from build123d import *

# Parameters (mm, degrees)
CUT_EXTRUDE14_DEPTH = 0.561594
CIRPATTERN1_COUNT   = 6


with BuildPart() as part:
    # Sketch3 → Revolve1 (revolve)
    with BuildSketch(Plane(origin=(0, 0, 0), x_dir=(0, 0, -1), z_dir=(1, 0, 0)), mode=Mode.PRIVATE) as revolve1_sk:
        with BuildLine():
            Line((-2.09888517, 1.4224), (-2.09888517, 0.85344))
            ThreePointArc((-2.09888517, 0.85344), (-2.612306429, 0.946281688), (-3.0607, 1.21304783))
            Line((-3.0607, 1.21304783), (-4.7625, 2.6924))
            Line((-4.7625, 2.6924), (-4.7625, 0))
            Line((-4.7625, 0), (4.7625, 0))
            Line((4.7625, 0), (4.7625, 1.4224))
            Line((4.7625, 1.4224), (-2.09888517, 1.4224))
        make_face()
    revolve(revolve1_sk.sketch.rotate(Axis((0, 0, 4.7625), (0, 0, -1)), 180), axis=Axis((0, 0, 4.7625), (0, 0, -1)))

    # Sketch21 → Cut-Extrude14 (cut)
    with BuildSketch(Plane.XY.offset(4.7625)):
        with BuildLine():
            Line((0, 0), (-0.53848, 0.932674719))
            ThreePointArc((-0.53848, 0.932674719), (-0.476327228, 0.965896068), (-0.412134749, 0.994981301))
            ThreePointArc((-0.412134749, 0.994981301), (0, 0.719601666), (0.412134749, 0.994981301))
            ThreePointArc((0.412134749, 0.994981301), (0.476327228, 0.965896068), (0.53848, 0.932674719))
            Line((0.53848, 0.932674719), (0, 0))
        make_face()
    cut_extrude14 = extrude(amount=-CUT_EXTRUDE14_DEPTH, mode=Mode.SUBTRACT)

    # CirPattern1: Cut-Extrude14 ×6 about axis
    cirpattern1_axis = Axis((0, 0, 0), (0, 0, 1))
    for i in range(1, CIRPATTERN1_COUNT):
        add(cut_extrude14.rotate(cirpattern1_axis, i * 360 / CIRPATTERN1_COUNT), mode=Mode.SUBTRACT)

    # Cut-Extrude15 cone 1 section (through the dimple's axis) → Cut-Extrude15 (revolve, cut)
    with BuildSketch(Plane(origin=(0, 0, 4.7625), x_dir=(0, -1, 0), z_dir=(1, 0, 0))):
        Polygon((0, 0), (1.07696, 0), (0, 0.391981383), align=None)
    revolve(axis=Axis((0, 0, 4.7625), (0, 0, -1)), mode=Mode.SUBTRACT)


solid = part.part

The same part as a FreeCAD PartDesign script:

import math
import FreeCAD as App
import Part
import Sketcher

V = App.Vector
Q = App.Units.Quantity

doc = App.newDocument("Part")
body = doc.addObject("PartDesign::Body", "Body")

# Sketch on YZ plane
sketch1 = body.newObject("Sketcher::SketchObject", "Sketch")
sketch1.AttachmentSupport = (doc.getObject("YZ_Plane"), [""])
sketch1.MapMode = "FlatFace"
sketch1.addGeometry([
    Part.LineSegment(V(1.4224, 2.098885, 0), V(0.85344, 2.098885, 0)),  # 0
    Part.ArcOfCircle(Part.Circle(V(2.319489, 2.098885, 0), V(0, 0, 1), 1.466049), math.radians(139), math.radians(180)),  # 1
    Part.LineSegment(V(1.213048, 3.0607, 0), V(2.6924, 4.7625, 0)),  # 2
    Part.LineSegment(V(2.6924, 4.7625, 0), V(0, 4.7625, 0)),  # 3
    Part.LineSegment(V(0, 4.7625, 0), V(0, -4.7625, 0)),  # 4
    Part.LineSegment(V(0, -4.7625, 0), V(1.4224, -4.7625, 0)),  # 5
    Part.LineSegment(V(1.4224, -4.7625, 0), V(1.4224, 2.098885, 0)),  # 6
], False)
sketch1.addConstraint([
    Sketcher.Constraint("Coincident", 0, 2, 1, 2),
    Sketcher.Constraint("Tangent", 1, 1, 2, 1),
    Sketcher.Constraint("Coincident", 2, 2, 3, 1),
    Sketcher.Constraint("Coincident", 3, 2, 4, 1),
    Sketcher.Constraint("Coincident", 4, 2, 5, 1),
    Sketcher.Constraint("Coincident", 5, 2, 6, 1),
    Sketcher.Constraint("Coincident", 6, 2, 0, 1),
    Sketcher.Constraint("Horizontal", 0),
    Sketcher.Constraint("Horizontal", 3),
    Sketcher.Constraint("Vertical", 4),
    Sketcher.Constraint("Horizontal", 5),
    Sketcher.Constraint("Vertical", 6),
    Sketcher.Constraint("Symmetric", 3, 2, 4, 2, -1, 1),
    Sketcher.Constraint("Horizontal", 1, 3, 0, 2),
    Sketcher.Constraint("Angle", 2, Q("49 deg")),
    Sketcher.Constraint("DistanceX", 3, 2, 3, 1, Q("0.106 in")),
    Sketcher.Constraint("DistanceX", 5, 1, 5, 2, Q("0.056 in")),
    Sketcher.Constraint("DistanceY", 4, 2, 4, 1, Q("0.375 in")),
    Sketcher.Constraint("DistanceX", 0, 2, 0, 1, Q("0.0224 in")),
    Sketcher.Constraint("Radius", 1, Q("1.466049 mm")),
])
revolution = body.newObject("PartDesign::Revolution", "Revolution")
revolution.Profile = sketch1
revolution.ReferenceAxis = (sketch1, ["V_Axis"])
revolution.Angle = 360

# Sketch on XY plane
sketch2 = body.newObject("Sketcher::SketchObject", "Sketch001")
sketch2.AttachmentSupport = (doc.getObject("XY_Plane"), [""])
sketch2.MapMode = "FlatFace"
sketch2.AttachmentOffset = App.Placement(V(0, 0, 0.1875 * 25.4), App.Rotation())
sketch2.addGeometry([
    Part.LineSegment(V(-0.53848, 0.932675, 0), V(0, 0, 0)),  # 0
    Part.LineSegment(V(0, 0, 0), V(0.53848, 0.932675, 0)),  # 1
    Part.ArcOfCircle(Part.Circle(V(0, 0, 0), V(0, 0, 1), 1.07696), math.radians(59.999999), math.radians(67.500001)),  # 2
    Part.ArcOfCircle(Part.Circle(V(0, 1.165693, 0), V(0, 0, 1), 0.446091), math.radians(-157.5), math.radians(-22.5)),  # 3
    Part.ArcOfCircle(Part.Circle(V(0, 0, 0), V(0, 0, 1), 1.07696), math.radians(112.499999), math.radians(120.000001)),  # 4
], False)
sketch2.addConstraint([
    Sketcher.Constraint("Coincident", 0, 2, 1, 1),
    Sketcher.Constraint("Coincident", 1, 2, 2, 1),
    Sketcher.Constraint("Coincident", 2, 2, 3, 2),
    Sketcher.Constraint("Coincident", 3, 1, 4, 1),
    Sketcher.Constraint("Coincident", 4, 2, 0, 1),
    Sketcher.Constraint("Coincident", 2, 3, -1, 1),
    Sketcher.Constraint("Coincident", 4, 3, -1, 1),
    Sketcher.Constraint("Coincident", 0, 2, -1, 1),
    Sketcher.Constraint("Equal", 2, 4),
    Sketcher.Constraint("PointOnObject", 3, 3, -2),
    Sketcher.Constraint("Horizontal", 1, 2, 4, 2),
    Sketcher.Constraint("Angle", 0, Q("-60 deg")),
    Sketcher.Constraint("Radius", 2, Q("0.0424 in")),
    Sketcher.Constraint("Radius", 3, Q("0.446091 mm")),
    Sketcher.Constraint("DistanceY", -1, 1, 2, 2, Q("0.994981 mm")),
])
pocket1 = body.newObject("PartDesign::Pocket", "Pocket")
pocket1.Profile = sketch2
pocket1.Length = 0.561594
doc.recompute()

polarpattern = body.newObject("PartDesign::PolarPattern", "PolarPattern")
polarpattern.Originals = [pocket1]
polarpattern.Axis = (doc.getObject("Z_Axis"), [""])
polarpattern.Angle = 360
polarpattern.Occurrences = 6
body.Tip = polarpattern

# Sketch on YZ plane
sketch3 = body.newObject("Sketcher::SketchObject", "Sketch002")
sketch3.AttachmentSupport = (doc.getObject("YZ_Plane"), [""])
sketch3.MapMode = "FlatFace"
sketch3.addGeometry([
    Part.LineSegment(V(0, 4.7625, 0), V(-1.07696, 4.7625, 0)),
    Part.LineSegment(V(-1.07696, 4.7625, 0), V(0, 4.370519, 0)),
    Part.LineSegment(V(0, 4.370519, 0), V(0, 4.7625, 0)),
], False)
sketch3.addConstraint([
    Sketcher.Constraint("Coincident", 0, 2, 1, 1),
    Sketcher.Constraint("Coincident", 1, 2, 2, 1),
    Sketcher.Constraint("Coincident", 2, 2, 0, 1),
    Sketcher.Constraint("Horizontal", 0),
    Sketcher.Constraint("Vertical", 2),
    Sketcher.Constraint("PointOnObject", 1, 2, -2),
    Sketcher.Constraint("Angle", 1, Q("-20 deg")),
    Sketcher.Constraint("DistanceX", 0, 2, 0, 1, Q("0.0424 in")),
    Sketcher.Constraint("DistanceY", -1, 1, 0, 2, Q("0.1875 in")),
])
groove = body.newObject("PartDesign::Groove", "Groove")
groove.Profile = sketch3
groove.ReferenceAxis = (sketch3, ["V_Axis"])
groove.Angle = 360

doc.recompute()
